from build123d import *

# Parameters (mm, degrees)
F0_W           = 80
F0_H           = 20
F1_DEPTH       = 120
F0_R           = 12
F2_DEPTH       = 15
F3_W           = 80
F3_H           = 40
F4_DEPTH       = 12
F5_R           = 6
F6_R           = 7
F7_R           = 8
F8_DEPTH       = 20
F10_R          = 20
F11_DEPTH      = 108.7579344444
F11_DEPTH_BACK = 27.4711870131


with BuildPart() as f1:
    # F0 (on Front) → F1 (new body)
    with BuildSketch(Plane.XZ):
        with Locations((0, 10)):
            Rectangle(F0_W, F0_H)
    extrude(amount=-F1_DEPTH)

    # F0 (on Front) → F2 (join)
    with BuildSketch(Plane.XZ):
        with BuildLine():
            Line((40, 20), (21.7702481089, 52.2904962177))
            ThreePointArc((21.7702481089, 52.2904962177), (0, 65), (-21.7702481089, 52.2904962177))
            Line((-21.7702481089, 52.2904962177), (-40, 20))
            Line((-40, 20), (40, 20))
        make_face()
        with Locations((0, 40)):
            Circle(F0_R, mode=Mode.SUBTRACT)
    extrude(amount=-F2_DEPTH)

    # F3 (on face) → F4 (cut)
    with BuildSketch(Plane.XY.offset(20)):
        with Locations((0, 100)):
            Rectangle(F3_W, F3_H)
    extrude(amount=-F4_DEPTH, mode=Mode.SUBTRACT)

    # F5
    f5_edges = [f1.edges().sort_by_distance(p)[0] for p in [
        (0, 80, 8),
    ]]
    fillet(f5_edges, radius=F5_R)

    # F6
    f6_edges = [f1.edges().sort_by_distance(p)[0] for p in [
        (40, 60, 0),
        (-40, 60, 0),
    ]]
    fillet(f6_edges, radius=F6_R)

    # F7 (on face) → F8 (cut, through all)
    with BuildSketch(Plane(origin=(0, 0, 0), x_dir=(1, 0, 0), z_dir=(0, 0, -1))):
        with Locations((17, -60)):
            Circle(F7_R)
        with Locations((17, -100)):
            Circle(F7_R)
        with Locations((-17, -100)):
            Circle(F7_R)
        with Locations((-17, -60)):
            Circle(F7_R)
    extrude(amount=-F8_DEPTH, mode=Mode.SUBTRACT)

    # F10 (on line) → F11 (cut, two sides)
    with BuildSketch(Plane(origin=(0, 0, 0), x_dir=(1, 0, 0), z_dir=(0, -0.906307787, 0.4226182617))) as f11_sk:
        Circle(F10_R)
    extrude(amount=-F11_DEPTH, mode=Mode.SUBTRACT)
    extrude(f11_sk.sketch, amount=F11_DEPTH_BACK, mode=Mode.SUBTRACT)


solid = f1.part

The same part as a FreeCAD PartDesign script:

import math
import FreeCAD as App
import Part
import Sketcher

V = App.Vector
Q = App.Units.Quantity


def edges_at(feature, points):
    """Names of the edges that pass closest to the given points."""
    edges = feature.Shape.Edges
    near = lambda p: min(range(len(edges)), key=lambda i: edges[i].distToShape(Part.Vertex(*p))[0])
    return sorted({f"Edge{near(p) + 1}" for p in points})

doc = App.newDocument("Part")
body = doc.addObject("PartDesign::Body", "Body")

# Sketch on XZ plane
sketch1 = body.newObject("Sketcher::SketchObject", "Sketch")
sketch1.AttachmentSupport = (doc.getObject("XZ_Plane"), [""])
sketch1.MapMode = "FlatFace"
sketch1.addGeometry([
    Part.LineSegment(V(-40, 20, 0), V(-40, 0, 0)),
    Part.LineSegment(V(-40, 0, 0), V(40, 0, 0)),
    Part.LineSegment(V(40, 0, 0), V(40, 20, 0)),
    Part.LineSegment(V(40, 20, 0), V(-40, 20, 0)),
], False)
sketch1.addConstraint([
    Sketcher.Constraint("Coincident", 0, 2, 1, 1),
    Sketcher.Constraint("Coincident", 1, 2, 2, 1),
    Sketcher.Constraint("Coincident", 2, 2, 3, 1),
    Sketcher.Constraint("Coincident", 3, 2, 0, 1),
    Sketcher.Constraint("Vertical", 0),
    Sketcher.Constraint("Horizontal", 1),
    Sketcher.Constraint("Vertical", 2),
    Sketcher.Constraint("Horizontal", 3),
    Sketcher.Constraint("Symmetric", 0, 2, 1, 2, -1, 1),
    Sketcher.Constraint("DistanceX", 1, 1, 1, 2, Q("80 mm")),
    Sketcher.Constraint("DistanceY", 0, 2, 0, 1, Q("20 mm")),
])
pad1 = body.newObject("PartDesign::Pad", "Pad")
pad1.Profile = sketch1
pad1.Length = 120
pad1.Reversed = True

# Sketch on XZ plane
sketch2 = body.newObject("Sketcher::SketchObject", "Sketch001")
sketch2.AttachmentSupport = (doc.getObject("XZ_Plane"), [""])
sketch2.MapMode = "FlatFace"
sketch2.addGeometry([
    Part.LineSegment(V(40, 20, 0), V(22, 52, 0)),  # 0
    Part.ArcOfCircle(Part.Circle(V(0, 40, 0), V(0, 0, 1), 25), math.radians(29), math.radians(151)),  # 1
    Part.LineSegment(V(-22, 52, 0), V(-40, 20, 0)),  # 2
    Part.LineSegment(V(-40, 20, 0), V(40, 20, 0)),  # 3
    Part.Circle(V(0, 40, 0), V(0, 0, 1), 12),  # 4
], False)
sketch2.addConstraint([
    Sketcher.Constraint("Tangent", 0, 2, 1, 1),
    Sketcher.Constraint("Tangent", 1, 2, 2, 1),
    Sketcher.Constraint("Coincident", 2, 2, 3, 1),
    Sketcher.Constraint("Coincident", 3, 2, 0, 1),
    Sketcher.Constraint("Horizontal", 3),
    Sketcher.Constraint("Coincident", 4, 3, 1, 3),
    Sketcher.Constraint("Symmetric", 0, 2, 1, 2, -2),
    Sketcher.Constraint("Diameter", 4, Q("24 mm")),
    Sketcher.Constraint("Radius", 1, Q("25 mm")),
    Sketcher.Constraint("DistanceX", 3, 1, 3, 2, Q("80 mm")),
    Sketcher.Constraint("DistanceY", -1, 1, 1, 3, Q("40 mm")),
    Sketcher.Constraint("DistanceY", -1, 1, 2, 2, Q("20 mm")),
])
pad2 = body.newObject("PartDesign::Pad", "Pad001")
pad2.Profile = sketch2
pad2.Length = 15
pad2.Reversed = True

# Sketch on XY plane
sketch3 = body.newObject("Sketcher::SketchObject", "Sketch002")
sketch3.AttachmentSupport = (doc.getObject("XY_Plane"), [""])
sketch3.MapMode = "FlatFace"
sketch3.AttachmentOffset = App.Placement(V(0, 0, 20), App.Rotation())
sketch3.addGeometry([
    Part.LineSegment(V(-40, 120, 0), V(-40, 80, 0)),
    Part.LineSegment(V(-40, 80, 0), V(40, 80, 0)),
    Part.LineSegment(V(40, 80, 0), V(40, 120, 0)),
    Part.LineSegment(V(40, 120, 0), V(-40, 120, 0)),
], False)
sketch3.addConstraint([
    Sketcher.Constraint("Coincident", 0, 2, 1, 1),
    Sketcher.Constraint("Coincident", 1, 2, 2, 1),
    Sketcher.Constraint("Coincident", 2, 2, 3, 1),
    Sketcher.Constraint("Coincident", 3, 2, 0, 1),
    Sketcher.Constraint("Vertical", 0),
    Sketcher.Constraint("Horizontal", 1),
    Sketcher.Constraint("Vertical", 2),
    Sketcher.Constraint("Horizontal", 3),
    Sketcher.Constraint("DistanceX", 1, 1, 1, 2, Q("80 mm")),
    Sketcher.Constraint("DistanceY", 0, 2, 0, 1, Q("40 mm")),
    Sketcher.Constraint("DistanceX", 0, 2, -1, 1, Q("40 mm")),
    Sketcher.Constraint("DistanceY", -1, 1, 0, 2, Q("80 mm")),
])
pocket1 = body.newObject("PartDesign::Pocket", "Pocket")
pocket1.Profile = sketch3
pocket1.Length = 12
doc.recompute()

fillet = body.newObject("PartDesign::Fillet", "Fillet")
fillet.Base = (pocket1, edges_at(pocket1, [(0, 80, 8)]))
fillet.Radius = 6
doc.recompute()

fillet2 = body.newObject("PartDesign::Fillet", "Fillet001")
fillet2.Base = (fillet, edges_at(fillet, [(40, 60, 0), (-40, 60, 0)]))
fillet2.Radius = 7

# Sketch on XY plane
sketch4 = body.newObject("Sketcher::SketchObject", "Sketch003")
sketch4.AttachmentSupport = (doc.getObject("XY_Plane"), [""])
sketch4.MapMode = "FlatFace"
sketch4.addGeometry([
    Part.Circle(V(17, 60, 0), V(0, 0, 1), 8),
    Part.Circle(V(17, 100, 0), V(0, 0, 1), 8),
    Part.Circle(V(-17, 100, 0), V(0, 0, 1), 8),
    Part.Circle(V(-17, 60, 0), V(0, 0, 1), 8),
], False)
sketch4.addConstraint([
    Sketcher.Constraint("Equal", 0, 1),
    Sketcher.Constraint("Equal", 1, 2),
    Sketcher.Constraint("Equal", 2, 3),
    Sketcher.Constraint("Symmetric", 1, 3, 2, 3, -2),
    Sketcher.Constraint("Symmetric", 0, 3, 3, 3, -2),
    Sketcher.Constraint("Vertical", 0, 3, 1, 3),
    Sketcher.Constraint("Diameter", 0, Q("16 mm")),
    Sketcher.Constraint("DistanceX", -1, 1, 0, 3, Q("17 mm")),
    Sketcher.Constraint("DistanceY", -1, 1, 0, 3, Q("60 mm")),
    Sketcher.Constraint("DistanceY", -1, 1, 1, 3, Q("100 mm")),
])
pocket2 = body.newObject("PartDesign::Pocket", "Pocket001")
pocket2.Profile = sketch4
pocket2.Type = "ThroughAll"
pocket2.Reversed = True

# Sketch on an angled plane
sketch5 = body.newObject("Sketcher::SketchObject", "Sketch004")
sketch5.Placement = App.Placement(V(0, 0, 0), App.Rotation(V(1, 0, 0), V(0, 0.422618262, 0.906307787), V(0, -0.906307787, 0.422618262), "ZXY"))
sketch5.addGeometry(Part.Circle(V(0, 0, 0), V(0, 0, 1), 20), False)
sketch5.addConstraint([
    Sketcher.Constraint("Coincident", 0, 3, -1, 1),
    Sketcher.Constraint("Diameter", 0, Q("40 mm")),
])
pocket3 = body.newObject("PartDesign::Pocket", "Pocket002")
pocket3.Profile = sketch5
pocket3.Type = "ThroughAll"
pocket3.Midplane = True

doc.recompute()
